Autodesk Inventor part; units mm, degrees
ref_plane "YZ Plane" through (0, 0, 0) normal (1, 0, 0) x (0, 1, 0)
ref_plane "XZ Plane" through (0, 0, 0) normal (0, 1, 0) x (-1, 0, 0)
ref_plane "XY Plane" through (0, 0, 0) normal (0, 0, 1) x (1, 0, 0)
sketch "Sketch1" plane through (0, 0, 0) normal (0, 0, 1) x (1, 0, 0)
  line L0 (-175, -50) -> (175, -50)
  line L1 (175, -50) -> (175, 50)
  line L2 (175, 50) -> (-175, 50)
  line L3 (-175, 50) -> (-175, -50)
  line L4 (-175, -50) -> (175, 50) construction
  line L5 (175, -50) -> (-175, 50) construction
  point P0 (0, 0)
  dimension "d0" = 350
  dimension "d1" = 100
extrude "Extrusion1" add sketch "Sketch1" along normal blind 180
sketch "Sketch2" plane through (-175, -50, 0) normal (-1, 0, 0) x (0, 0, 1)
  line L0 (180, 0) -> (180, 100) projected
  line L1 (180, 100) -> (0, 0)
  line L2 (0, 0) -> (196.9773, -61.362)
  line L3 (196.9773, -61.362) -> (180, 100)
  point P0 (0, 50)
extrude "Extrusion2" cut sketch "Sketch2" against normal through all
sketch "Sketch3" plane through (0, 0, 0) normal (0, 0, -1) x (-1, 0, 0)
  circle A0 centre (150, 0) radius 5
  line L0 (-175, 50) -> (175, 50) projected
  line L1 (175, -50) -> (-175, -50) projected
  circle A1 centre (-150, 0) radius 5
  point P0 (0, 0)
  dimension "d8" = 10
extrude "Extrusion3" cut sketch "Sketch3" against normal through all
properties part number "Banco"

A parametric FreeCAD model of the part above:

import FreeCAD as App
import Part
import Sketcher
Q = App.Units.Quantity


def add_polygon(sketch, points):
    """Adds a closed chain of lines whose ends are joined by coincident constraints."""
    first, n = sketch.GeometryCount, len(points)
    for a, b in zip(points, points[1:] + points[:1]):
        sketch.addGeometry(Part.LineSegment(App.Vector(*a, 0), App.Vector(*b, 0)), False)
    for i in range(n):
        sketch.addConstraint(Sketcher.Constraint("Coincident", first + i, 2, first + (i + 1) % n, 1))

doc = App.newDocument("Part")
body = doc.addObject("PartDesign::Body", "Body")

sketch1 = body.newObject("Sketcher::SketchObject", "Sketch")
sketch1.AttachmentSupport = (doc.getObject("XY_Plane"), [""])
sketch1.MapMode = "FlatFace"
add_polygon(sketch1, [(-175, 50), (-175, -50), (175, -50), (175, 50)])
sketch1.addConstraint(Sketcher.Constraint("Vertical", 0))
sketch1.addConstraint(Sketcher.Constraint("Horizontal", 1))
sketch1.addConstraint(Sketcher.Constraint("Vertical", 2))
sketch1.addConstraint(Sketcher.Constraint("Horizontal", 3))
sketch1.addConstraint(Sketcher.Constraint("Symmetric", 0, 2, 2, 2, -1, 1))
sketch1.addConstraint(Sketcher.Constraint("DistanceX", 1, 1, 1, 2, Q("350 mm")))
sketch1.addConstraint(Sketcher.Constraint("DistanceY", 0, 2, 0, 1, Q("100 mm")))
pad1 = body.newObject("PartDesign::Pad", "Pad")
pad1.Profile = sketch1
pad1.Length = 180

sketch2 = body.newObject("Sketcher::SketchObject", "Sketch001")
sketch2.AttachmentSupport = (doc.getObject("YZ_Plane"), [""])
sketch2.MapMode = "FlatFace"
sketch2.AttachmentOffset = App.Placement(App.Vector(0, 0, -175), App.Rotation())
add_polygon(sketch2, [(-111, 197), (50, 180), (-50, 0)])
sketch2.addConstraint(Sketcher.Constraint("PointOnObject", 1, 2, -1))
sketch2.addConstraint(Sketcher.Constraint("DistanceX", -1, 1, 0, 2, Q("50 mm")))
sketch2.addConstraint(Sketcher.Constraint("DistanceY", -1, 1, 0, 2, Q("180 mm")))
sketch2.addConstraint(Sketcher.Constraint("DistanceX", 1, 2, -1, 1, Q("50 mm")))
sketch2.addConstraint(Sketcher.Constraint("DistanceX", 2, 2, -1, 1, Q("111.362 mm")))
sketch2.addConstraint(Sketcher.Constraint("Distance", 0, Q("162.2527 mm")))
pocket1 = body.newObject("PartDesign::Pocket", "Pocket")
pocket1.Profile = sketch2
pocket1.Type = "ThroughAll"
pocket1.Reversed = True

sketch3 = body.newObject("Sketcher::SketchObject", "Sketch002")
sketch3.AttachmentSupport = (doc.getObject("XY_Plane"), [""])
sketch3.MapMode = "FlatFace"
sketch3.addGeometry(Part.Circle(App.Vector(-150, 0, 0), App.Vector(0, 0, 1), 5), False)
sketch3.addGeometry(Part.Circle(App.Vector(150, 0, 0), App.Vector(0, 0, 1), 5), False)
sketch3.addConstraint(Sketcher.Constraint("Equal", 0, 1))
sketch3.addConstraint(Sketcher.Constraint("Symmetric", 0, 3, 1, 3, -1, 1))
sketch3.addConstraint(Sketcher.Constraint("PointOnObject", 0, 3, -1))
sketch3.addConstraint(Sketcher.Constraint("Diameter", 0, Q("10 mm")))
sketch3.addConstraint(Sketcher.Constraint("DistanceX", 0, 3, -1, 1, Q("150 mm")))
pocket2 = body.newObject("PartDesign::Pocket", "Pocket001")
pocket2.Profile = sketch3
pocket2.Type = "ThroughAll"
pocket2.Reversed = True

doc.recompute()
